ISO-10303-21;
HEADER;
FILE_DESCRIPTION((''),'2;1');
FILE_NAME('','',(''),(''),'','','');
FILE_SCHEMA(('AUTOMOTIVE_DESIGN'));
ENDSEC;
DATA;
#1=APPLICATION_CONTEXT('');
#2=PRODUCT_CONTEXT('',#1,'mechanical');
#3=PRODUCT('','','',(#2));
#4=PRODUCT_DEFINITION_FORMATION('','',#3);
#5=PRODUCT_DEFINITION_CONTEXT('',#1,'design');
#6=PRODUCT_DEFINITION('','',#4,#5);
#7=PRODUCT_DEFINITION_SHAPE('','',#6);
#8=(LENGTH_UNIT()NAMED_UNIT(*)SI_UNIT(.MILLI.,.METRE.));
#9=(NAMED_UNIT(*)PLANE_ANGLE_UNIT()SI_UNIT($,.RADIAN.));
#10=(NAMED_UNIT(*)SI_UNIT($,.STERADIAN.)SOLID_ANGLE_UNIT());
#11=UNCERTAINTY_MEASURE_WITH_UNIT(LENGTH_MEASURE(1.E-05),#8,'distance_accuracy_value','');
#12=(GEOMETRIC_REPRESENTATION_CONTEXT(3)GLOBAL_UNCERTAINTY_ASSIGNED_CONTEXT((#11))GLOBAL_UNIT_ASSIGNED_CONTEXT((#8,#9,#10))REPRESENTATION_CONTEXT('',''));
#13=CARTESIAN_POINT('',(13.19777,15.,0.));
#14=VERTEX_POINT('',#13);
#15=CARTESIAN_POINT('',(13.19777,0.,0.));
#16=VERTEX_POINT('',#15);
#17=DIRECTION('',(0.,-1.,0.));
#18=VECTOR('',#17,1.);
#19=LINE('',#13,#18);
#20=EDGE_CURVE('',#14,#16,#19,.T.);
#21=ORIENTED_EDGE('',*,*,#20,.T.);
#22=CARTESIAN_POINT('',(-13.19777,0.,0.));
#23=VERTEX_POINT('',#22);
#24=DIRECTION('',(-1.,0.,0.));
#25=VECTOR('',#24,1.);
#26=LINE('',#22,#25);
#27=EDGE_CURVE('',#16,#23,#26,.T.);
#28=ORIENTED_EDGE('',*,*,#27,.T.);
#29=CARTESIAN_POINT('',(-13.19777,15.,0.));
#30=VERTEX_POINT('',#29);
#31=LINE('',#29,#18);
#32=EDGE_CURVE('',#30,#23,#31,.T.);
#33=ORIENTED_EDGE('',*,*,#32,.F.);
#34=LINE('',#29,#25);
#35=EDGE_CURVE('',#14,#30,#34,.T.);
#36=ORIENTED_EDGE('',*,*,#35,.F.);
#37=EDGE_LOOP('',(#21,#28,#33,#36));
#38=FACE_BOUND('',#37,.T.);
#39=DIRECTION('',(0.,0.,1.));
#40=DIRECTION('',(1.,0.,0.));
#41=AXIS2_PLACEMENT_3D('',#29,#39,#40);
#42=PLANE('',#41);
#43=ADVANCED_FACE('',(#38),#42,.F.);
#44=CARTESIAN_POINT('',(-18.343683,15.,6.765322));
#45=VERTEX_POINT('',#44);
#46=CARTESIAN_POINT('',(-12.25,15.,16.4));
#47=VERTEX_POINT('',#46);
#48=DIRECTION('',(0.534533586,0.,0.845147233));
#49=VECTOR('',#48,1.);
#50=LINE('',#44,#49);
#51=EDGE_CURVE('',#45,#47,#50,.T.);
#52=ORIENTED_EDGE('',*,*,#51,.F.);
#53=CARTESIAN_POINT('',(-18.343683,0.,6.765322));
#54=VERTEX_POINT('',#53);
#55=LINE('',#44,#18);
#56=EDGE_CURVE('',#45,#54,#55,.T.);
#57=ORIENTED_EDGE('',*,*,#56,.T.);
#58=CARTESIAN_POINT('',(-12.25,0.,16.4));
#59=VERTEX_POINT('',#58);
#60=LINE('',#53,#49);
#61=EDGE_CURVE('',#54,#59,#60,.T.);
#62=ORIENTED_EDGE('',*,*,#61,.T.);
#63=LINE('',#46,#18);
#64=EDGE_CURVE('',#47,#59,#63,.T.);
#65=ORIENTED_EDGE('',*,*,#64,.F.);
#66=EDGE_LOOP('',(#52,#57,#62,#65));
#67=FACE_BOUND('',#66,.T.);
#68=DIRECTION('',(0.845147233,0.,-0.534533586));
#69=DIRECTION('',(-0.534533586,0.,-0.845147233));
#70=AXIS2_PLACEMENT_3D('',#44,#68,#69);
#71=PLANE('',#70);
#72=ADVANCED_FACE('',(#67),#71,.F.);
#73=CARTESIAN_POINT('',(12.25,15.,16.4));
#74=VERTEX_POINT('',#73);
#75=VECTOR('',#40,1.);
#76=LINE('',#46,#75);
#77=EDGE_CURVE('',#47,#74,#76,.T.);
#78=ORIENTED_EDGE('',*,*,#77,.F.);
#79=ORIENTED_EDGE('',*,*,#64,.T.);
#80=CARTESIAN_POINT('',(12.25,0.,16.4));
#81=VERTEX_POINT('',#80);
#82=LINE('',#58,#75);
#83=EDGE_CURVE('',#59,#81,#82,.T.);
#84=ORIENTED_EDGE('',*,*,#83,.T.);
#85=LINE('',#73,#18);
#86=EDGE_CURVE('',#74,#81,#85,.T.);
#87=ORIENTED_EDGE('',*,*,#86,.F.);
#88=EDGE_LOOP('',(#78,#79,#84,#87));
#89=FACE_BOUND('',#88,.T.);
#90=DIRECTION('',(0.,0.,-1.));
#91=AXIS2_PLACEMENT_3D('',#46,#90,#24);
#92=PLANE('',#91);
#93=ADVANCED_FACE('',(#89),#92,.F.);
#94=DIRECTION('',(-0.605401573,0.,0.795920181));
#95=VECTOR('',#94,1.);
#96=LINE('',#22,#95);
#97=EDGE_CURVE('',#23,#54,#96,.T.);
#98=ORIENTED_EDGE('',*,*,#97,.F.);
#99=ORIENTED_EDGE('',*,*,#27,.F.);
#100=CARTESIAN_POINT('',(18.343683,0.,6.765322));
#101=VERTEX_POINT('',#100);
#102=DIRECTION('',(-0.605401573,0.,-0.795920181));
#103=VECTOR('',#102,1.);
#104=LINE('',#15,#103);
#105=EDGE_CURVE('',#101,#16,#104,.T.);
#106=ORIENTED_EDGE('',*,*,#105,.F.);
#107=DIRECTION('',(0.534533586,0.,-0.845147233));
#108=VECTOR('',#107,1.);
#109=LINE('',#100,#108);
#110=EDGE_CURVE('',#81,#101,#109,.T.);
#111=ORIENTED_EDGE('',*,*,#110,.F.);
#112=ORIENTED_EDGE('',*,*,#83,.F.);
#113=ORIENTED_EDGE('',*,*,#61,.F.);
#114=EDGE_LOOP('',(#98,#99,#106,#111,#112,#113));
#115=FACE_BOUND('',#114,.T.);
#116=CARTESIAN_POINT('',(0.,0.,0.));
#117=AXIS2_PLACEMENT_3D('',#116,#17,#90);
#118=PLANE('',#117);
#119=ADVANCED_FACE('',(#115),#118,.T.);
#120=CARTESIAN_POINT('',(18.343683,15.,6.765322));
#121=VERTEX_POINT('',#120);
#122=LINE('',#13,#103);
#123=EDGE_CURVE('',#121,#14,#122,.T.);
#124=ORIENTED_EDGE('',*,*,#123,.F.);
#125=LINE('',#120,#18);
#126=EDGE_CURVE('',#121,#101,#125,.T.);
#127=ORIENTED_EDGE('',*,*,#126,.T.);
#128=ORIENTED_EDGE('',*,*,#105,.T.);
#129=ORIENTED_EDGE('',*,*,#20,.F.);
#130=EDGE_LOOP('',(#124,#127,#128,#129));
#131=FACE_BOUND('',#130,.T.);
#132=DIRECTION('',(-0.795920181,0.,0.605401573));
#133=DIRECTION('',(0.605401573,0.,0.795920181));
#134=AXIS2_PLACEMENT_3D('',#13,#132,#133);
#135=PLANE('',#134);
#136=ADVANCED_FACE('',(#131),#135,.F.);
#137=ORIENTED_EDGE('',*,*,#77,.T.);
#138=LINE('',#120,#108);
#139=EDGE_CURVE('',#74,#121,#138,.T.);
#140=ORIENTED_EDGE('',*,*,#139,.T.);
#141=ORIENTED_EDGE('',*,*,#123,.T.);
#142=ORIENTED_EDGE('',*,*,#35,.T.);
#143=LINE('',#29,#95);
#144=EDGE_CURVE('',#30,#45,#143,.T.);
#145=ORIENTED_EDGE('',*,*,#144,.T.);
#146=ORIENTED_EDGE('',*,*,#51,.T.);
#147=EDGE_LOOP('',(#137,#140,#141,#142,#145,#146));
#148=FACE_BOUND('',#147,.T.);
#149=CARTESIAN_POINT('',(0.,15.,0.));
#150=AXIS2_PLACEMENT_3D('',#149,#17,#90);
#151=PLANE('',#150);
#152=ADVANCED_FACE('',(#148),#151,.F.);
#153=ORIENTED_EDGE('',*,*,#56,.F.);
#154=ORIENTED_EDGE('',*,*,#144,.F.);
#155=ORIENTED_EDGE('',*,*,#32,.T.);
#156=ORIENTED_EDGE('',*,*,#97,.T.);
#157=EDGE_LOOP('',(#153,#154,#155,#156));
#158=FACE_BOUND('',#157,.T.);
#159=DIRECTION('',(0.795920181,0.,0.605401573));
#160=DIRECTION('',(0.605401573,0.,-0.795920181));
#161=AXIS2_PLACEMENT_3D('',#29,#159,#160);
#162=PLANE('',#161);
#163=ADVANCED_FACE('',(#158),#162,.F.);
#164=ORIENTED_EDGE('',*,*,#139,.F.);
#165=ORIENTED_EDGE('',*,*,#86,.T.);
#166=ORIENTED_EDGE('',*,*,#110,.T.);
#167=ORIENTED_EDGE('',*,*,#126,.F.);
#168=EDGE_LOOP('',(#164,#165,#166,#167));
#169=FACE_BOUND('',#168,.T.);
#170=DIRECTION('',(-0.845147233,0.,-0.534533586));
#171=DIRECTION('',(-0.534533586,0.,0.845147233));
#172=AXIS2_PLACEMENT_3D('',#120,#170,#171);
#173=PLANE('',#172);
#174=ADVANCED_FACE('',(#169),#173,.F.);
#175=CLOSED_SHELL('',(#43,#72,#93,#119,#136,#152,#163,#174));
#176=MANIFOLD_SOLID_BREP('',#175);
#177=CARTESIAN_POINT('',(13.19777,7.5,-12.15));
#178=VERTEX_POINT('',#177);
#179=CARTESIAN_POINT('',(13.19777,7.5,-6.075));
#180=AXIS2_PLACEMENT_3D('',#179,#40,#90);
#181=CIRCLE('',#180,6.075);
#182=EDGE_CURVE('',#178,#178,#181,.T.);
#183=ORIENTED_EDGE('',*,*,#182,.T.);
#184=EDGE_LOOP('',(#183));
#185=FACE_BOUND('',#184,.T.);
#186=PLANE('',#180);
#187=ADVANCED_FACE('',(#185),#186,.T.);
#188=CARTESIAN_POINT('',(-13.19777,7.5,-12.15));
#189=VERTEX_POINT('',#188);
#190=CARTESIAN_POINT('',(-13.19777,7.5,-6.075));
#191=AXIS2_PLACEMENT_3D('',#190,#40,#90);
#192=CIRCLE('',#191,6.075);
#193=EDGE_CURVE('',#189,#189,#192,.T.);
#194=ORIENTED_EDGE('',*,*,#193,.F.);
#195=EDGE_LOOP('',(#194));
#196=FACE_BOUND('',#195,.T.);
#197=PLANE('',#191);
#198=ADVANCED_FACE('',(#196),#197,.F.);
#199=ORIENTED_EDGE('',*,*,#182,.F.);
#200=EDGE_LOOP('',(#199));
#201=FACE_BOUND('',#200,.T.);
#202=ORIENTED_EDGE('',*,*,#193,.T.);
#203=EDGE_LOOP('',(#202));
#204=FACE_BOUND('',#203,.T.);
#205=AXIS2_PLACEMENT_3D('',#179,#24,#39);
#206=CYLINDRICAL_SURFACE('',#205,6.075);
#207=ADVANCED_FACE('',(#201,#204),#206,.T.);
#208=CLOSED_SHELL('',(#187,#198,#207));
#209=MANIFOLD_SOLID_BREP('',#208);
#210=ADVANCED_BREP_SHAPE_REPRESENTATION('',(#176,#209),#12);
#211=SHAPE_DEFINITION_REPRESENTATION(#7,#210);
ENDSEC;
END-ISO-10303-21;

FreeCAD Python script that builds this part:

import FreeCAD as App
import Part
import Sketcher
from FreeCAD import Vector


def add_polygon(sketch, points):
    """Adds a closed chain of lines whose ends are joined by coincident constraints."""
    first, n = sketch.GeometryCount, len(points)
    for a, b in zip(points, points[1:] + points[:1]):
        sketch.addGeometry(Part.LineSegment(App.Vector(*a, 0), App.Vector(*b, 0)), False)
    for i in range(n):
        sketch.addConstraint(Sketcher.Constraint("Coincident", first + i, 2, first + (i + 1) % n, 1))

doc = App.newDocument("Part")
params = doc.addObject("Spreadsheet::Sheet", "Params")
for row, (alias, value) in enumerate([
    ("sketch1_width", "24.5 mm"),
    ("sketch1_length", "8.5 mm"),
    ("sketch1_length2", "11.4 mm"),
    ("pad1_length", "15 mm"),
    ("sketch2_diameter", "12.15 mm"),
    ("pad2_length", "13.19777 mm"),
    ("pad2_length2", "13.19777 mm"),
], start=1):
    params.set(f"A{row}", alias)
    params.set(f"B{row}", "=" + value)
    params.setAlias(f"B{row}", alias)

body = doc.addObject("PartDesign::Body", "Body")

sketch1 = body.newObject("Sketcher::SketchObject", "Sketch")
sketch1.AttachmentSupport = (doc.getObject("XZ_Plane"), [""])
sketch1.MapMode = "FlatFace"
add_polygon(sketch1, [(-13, 0), (-18, 7), (-12, 16), (12, 16), (18, 7), (13, 0)])
sketch1.addConstraint([
    Sketcher.Constraint("Horizontal", 2),
    Sketcher.Constraint("Horizontal", 5),
    Sketcher.Constraint("Symmetric", 4, 2, 5, 2, -1, 1),
    Sketcher.Constraint("Symmetric", 0, 2, 3, 2, -2),
    Sketcher.Constraint("Equal", 1, 3),
    Sketcher.Constraint("DistanceX", 2, 1, 2, 2, 24.5),
    Sketcher.Constraint("Distance", 0, 8.5),
    Sketcher.Constraint("Distance", 1, 11.4),
    Sketcher.Constraint("DistanceY", -1, 1, 1, 2, 16.4),
    Sketcher.Constraint("DistanceX", 5, 2, 5, 1, 26.395539),
])
sketch1.setExpression("Constraints[11]", "Params.sketch1_width")
sketch1.setExpression("Constraints[12]", "Params.sketch1_length")
sketch1.setExpression("Constraints[13]", "Params.sketch1_length2")
pad1 = body.newObject("PartDesign::Pad", "Pad")
pad1.Profile = sketch1
pad1.setExpression("Length", "Params.pad1_length")
pad1.Reversed = True
body2 = doc.addObject("PartDesign::Body", "Body001")

sketch2 = body2.newObject("Sketcher::SketchObject", "Sketch001")
sketch2.AttachmentSupport = (doc.getObject("YZ_Plane001"), [""])
sketch2.MapMode = "FlatFace"
sketch2.addGeometry(Part.Circle(Vector(8, -6, 0), Vector(0, 0, 1), 6), False)
sketch2.addConstraint([
    Sketcher.Constraint("Diameter", 0, 12.15),
    Sketcher.Constraint("DistanceX", -1, 1, 0, 3, 7.5),
    Sketcher.Constraint("DistanceY", 0, 3, -1, 1, 6.075),
])
sketch2.setExpression("Constraints[0]", "Params.sketch2_diameter")
pad2 = body2.newObject("PartDesign::Pad", "Pad001")
pad2.Profile = sketch2
pad2.Type = "TwoLengths"
pad2.setExpression("Length", "Params.pad2_length")
pad2.setExpression("Length2", "Params.pad2_length2")

doc.recompute()
